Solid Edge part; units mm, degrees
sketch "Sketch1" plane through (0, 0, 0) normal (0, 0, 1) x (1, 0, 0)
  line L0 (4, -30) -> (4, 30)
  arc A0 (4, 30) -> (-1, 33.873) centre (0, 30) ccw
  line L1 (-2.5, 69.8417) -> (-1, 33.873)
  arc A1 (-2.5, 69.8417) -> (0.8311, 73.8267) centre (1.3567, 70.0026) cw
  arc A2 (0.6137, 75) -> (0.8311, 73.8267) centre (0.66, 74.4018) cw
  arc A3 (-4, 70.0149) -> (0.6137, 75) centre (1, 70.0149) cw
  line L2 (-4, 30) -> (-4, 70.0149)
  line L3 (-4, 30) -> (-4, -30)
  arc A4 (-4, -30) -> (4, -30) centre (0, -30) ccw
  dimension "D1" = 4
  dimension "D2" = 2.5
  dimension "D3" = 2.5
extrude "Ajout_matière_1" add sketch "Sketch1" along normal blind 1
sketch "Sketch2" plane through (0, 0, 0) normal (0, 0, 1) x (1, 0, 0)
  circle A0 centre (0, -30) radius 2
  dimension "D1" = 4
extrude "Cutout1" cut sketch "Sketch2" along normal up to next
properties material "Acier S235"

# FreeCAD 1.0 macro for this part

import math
import FreeCAD as App
import Part
import Sketcher

doc = App.newDocument("Part")
params = doc.addObject("Spreadsheet::Sheet", "Params")
for row, (alias, value) in enumerate([
    ("sketch1_radius", "4 mm"),
    ("sketch1_radius2", "5 mm"),
    ("sketch1_radius3", "0.6 mm"),
    ("sketch1_height", "60 mm"),
    ("sketch1_radius4", "3.86 mm"),
    ("pad1_length", "1 mm"),
    ("sketch2_diameter", "4 mm"),
], start=1):
    params.set(f"A{row}", alias)
    params.set(f"B{row}", "=" + value)
    params.setAlias(f"B{row}", alias)

body = doc.addObject("PartDesign::Body", "Body")

# Sketch on XY plane
sketch1 = doc.addObject("Sketcher::SketchObject", "Sketch")
body.addObject(sketch1)
sketch1.AttachmentSupport = (doc.XY_Plane, [""])
sketch1.MapMode = "FlatFace"
sketch1.addGeometry([
    Part.ArcOfCircle(Part.Circle(App.Vector(0, -30, 0), App.Vector(0, 0, 1), 4), math.radians(180), math.radians(360)),  # 0
    Part.LineSegment(App.Vector(4, -30, 0), App.Vector(4, 30, 0)),  # 1
    Part.ArcOfCircle(Part.Circle(App.Vector(0, 30, 0), App.Vector(0, 0, 1), 4), math.radians(0), math.radians(104)),  # 2
    Part.LineSegment(App.Vector(-1, 33.9, 0), App.Vector(-2.5, 69.8, 0)),  # 3
    Part.ArcOfCircle(Part.Circle(App.Vector(1.4, 70, 0), App.Vector(0, 0, 1), 3.9), math.radians(98), math.radians(182)),  # 4
    Part.ArcOfCircle(Part.Circle(App.Vector(0.7, 74.4, 0), App.Vector(0, 0, 1), 0.6), math.radians(-73), math.radians(94)),  # 5
    Part.ArcOfCircle(Part.Circle(App.Vector(1, 70, 0), App.Vector(0, 0, 1), 5), math.radians(94), math.radians(180)),  # 6
    Part.LineSegment(App.Vector(-4, 70, 0), App.Vector(-4, -30, 0)),  # 7
], False)
sketch1.addConstraint([
    Sketcher.Constraint("Tangent", 0, 2, 1, 1),
    Sketcher.Constraint("Tangent", 1, 2, 2, 1),
    Sketcher.Constraint("Coincident", 2, 2, 3, 1),
    Sketcher.Constraint("Tangent", 3, 2, 4, 2),
    Sketcher.Constraint("Coincident", 4, 1, 5, 1),
    Sketcher.Constraint("Tangent", 5, 2, 6, 1),
    Sketcher.Constraint("Tangent", 6, 2, 7, 1),
    Sketcher.Constraint("Tangent", 7, 2, 0, 1),
    Sketcher.Constraint("Vertical", 1),
    Sketcher.Constraint("Vertical", 7),
    Sketcher.Constraint("Equal", 0, 2),
    Sketcher.Constraint("Symmetric", 0, 3, 2, 3, -1, 1),
    Sketcher.Constraint("Radius", 0, 4.0),
    Sketcher.Constraint("Radius", 6, 5.0),
    Sketcher.Constraint("DistanceX", 3, 2, -1, 1, 2.5),
    Sketcher.Constraint("Radius", 5, 0.6),
    Sketcher.Constraint("DistanceY", 1, 1, 1, 2, 60.0),
    Sketcher.Constraint("Radius", 4, 3.86),
    Sketcher.Constraint("Distance", 3, 36.0),
    Sketcher.Constraint("DistanceX", 2, 2, -1, 1, 1.0),
    Sketcher.Constraint("DistanceY", -1, 1, 5, 2, 75.0),
    Sketcher.Constraint("DistanceY", 7, 2, 7, 1, 100.015),
])
sketch1.setExpression("Constraints[12]", "Params.sketch1_radius")
sketch1.setExpression("Constraints[13]", "Params.sketch1_radius2")
sketch1.setExpression("Constraints[15]", "Params.sketch1_radius3")
sketch1.setExpression("Constraints[16]", "Params.sketch1_height")
sketch1.setExpression("Constraints[17]", "Params.sketch1_radius4")
pad1 = doc.addObject("PartDesign::Pad", "Pad")
body.addObject(pad1)
pad1.Profile = sketch1
pad1.setExpression("Length", "Params.pad1_length")

# Sketch on XY plane
sketch2 = doc.addObject("Sketcher::SketchObject", "Sketch001")
body.addObject(sketch2)
sketch2.AttachmentSupport = (doc.XY_Plane, [""])
sketch2.MapMode = "FlatFace"
sketch2.addGeometry(Part.Circle(App.Vector(0, -30, 0), App.Vector(0, 0, 1), 2), False)
sketch2.addConstraint([
    Sketcher.Constraint("PointOnObject", 0, 3, -2),
    Sketcher.Constraint("Diameter", 0, 4.0),
    Sketcher.Constraint("DistanceY", 0, 3, -1, 1, 30.0),
])
sketch2.setExpression("Constraints[1]", "Params.sketch2_diameter")
pocket1 = doc.addObject("PartDesign::Pocket", "Pocket")
body.addObject(pocket1)
pocket1.Profile = sketch2
pocket1.Type = "UpToFirst"
pocket1.Reversed = True

doc.recompute()
